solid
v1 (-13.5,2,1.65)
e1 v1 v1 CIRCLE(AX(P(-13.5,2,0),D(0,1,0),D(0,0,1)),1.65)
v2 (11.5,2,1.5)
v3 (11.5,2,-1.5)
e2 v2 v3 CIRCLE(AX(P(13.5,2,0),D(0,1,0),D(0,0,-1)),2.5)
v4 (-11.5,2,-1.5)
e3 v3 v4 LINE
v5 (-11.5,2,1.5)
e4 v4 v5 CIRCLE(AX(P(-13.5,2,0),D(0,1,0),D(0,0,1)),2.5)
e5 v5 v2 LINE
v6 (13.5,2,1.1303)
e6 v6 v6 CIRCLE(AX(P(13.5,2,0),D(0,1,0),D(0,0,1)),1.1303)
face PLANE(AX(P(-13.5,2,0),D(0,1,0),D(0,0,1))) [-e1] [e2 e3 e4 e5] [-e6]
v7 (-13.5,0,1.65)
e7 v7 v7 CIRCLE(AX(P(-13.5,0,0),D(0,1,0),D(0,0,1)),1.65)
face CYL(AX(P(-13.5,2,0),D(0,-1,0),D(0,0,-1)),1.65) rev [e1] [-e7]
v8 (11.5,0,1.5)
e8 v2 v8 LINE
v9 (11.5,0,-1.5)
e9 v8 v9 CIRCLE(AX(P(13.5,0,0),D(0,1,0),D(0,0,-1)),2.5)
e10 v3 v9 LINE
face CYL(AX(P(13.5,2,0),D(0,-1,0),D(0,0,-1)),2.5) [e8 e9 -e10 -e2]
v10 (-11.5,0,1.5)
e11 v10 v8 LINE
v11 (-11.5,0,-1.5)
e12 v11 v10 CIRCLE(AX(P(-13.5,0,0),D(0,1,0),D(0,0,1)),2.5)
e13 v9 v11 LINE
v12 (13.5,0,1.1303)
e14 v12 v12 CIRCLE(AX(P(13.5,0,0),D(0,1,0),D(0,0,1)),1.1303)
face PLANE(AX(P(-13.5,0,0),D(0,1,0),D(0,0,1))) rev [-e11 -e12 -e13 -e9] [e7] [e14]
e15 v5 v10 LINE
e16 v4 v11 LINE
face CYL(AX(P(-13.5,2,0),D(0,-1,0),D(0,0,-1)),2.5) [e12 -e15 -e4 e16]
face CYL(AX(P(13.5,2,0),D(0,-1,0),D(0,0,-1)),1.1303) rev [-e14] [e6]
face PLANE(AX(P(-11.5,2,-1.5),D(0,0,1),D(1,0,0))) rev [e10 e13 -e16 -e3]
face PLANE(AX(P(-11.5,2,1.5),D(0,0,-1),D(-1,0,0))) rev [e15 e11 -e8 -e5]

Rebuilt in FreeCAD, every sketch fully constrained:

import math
import FreeCAD as App
import Part
import Sketcher
Q = App.Units.Quantity

doc = App.newDocument("Part")
body = doc.addObject("PartDesign::Body", "Body")

# Sketch on XZ plane
sketch1 = body.newObject("Sketcher::SketchObject", "Sketch")
sketch1.AttachmentSupport = (doc.getObject("XZ_Plane"), [""])
sketch1.MapMode = "FlatFace"
sketch1.addGeometry(Part.LineSegment(App.Vector(11.5, -1.5, 0), App.Vector(-11.5, -1.5, 0)), False)
sketch1.addGeometry(Part.ArcOfCircle(Part.Circle(App.Vector(-13.5, 0, 0), App.Vector(0, 0, 1), 2.5), math.radians(37), math.radians(323)), False)
sketch1.addGeometry(Part.LineSegment(App.Vector(-11.5, 1.5, 0), App.Vector(11.5, 1.5, 0)), False)
sketch1.addGeometry(Part.ArcOfCircle(Part.Circle(App.Vector(13.5, 0, 0), App.Vector(0, 0, 1), 2.5), math.radians(-143), math.radians(143)), False)
sketch1.addGeometry(Part.Circle(App.Vector(13.5, 0, 0), App.Vector(0, 0, 1), 1.1), False)
sketch1.addGeometry(Part.Circle(App.Vector(-13.5, 0, 0), App.Vector(0, 0, 1), 1.6), False)
sketch1.addConstraint(Sketcher.Constraint("Coincident", 0, 2, 1, 2))
sketch1.addConstraint(Sketcher.Constraint("Coincident", 1, 1, 2, 1))
sketch1.addConstraint(Sketcher.Constraint("Coincident", 2, 2, 3, 2))
sketch1.addConstraint(Sketcher.Constraint("Coincident", 3, 1, 0, 1))
sketch1.addConstraint(Sketcher.Constraint("Horizontal", 0))
sketch1.addConstraint(Sketcher.Constraint("Horizontal", 2))
sketch1.addConstraint(Sketcher.Constraint("Coincident", 4, 3, 3, 3))
sketch1.addConstraint(Sketcher.Constraint("Coincident", 5, 3, 1, 3))
sketch1.addConstraint(Sketcher.Constraint("Equal", 1, 3))
sketch1.addConstraint(Sketcher.Constraint("Symmetric", 1, 3, 3, 3, -1, 1))
sketch1.addConstraint(Sketcher.Constraint("Symmetric", 0, 2, 1, 1, -1))
sketch1.addConstraint(Sketcher.Constraint("Diameter", 5, Q("3.3 mm")))
sketch1.addConstraint(Sketcher.Constraint("Radius", 1, Q("2.5 mm")))
sketch1.addConstraint(Sketcher.Constraint("DistanceX", 0, 2, 0, 1, Q("23 mm")))
sketch1.addConstraint(Sketcher.Constraint("DistanceX", 1, 3, 3, 3, Q("27 mm")))
sketch1.addConstraint(Sketcher.Constraint("Diameter", 4, Q("2.2606 mm")))
pad1 = body.newObject("PartDesign::Pad", "Pad")
pad1.Profile = sketch1
pad1.Length = 2
pad1.Reversed = True

doc.recompute()
